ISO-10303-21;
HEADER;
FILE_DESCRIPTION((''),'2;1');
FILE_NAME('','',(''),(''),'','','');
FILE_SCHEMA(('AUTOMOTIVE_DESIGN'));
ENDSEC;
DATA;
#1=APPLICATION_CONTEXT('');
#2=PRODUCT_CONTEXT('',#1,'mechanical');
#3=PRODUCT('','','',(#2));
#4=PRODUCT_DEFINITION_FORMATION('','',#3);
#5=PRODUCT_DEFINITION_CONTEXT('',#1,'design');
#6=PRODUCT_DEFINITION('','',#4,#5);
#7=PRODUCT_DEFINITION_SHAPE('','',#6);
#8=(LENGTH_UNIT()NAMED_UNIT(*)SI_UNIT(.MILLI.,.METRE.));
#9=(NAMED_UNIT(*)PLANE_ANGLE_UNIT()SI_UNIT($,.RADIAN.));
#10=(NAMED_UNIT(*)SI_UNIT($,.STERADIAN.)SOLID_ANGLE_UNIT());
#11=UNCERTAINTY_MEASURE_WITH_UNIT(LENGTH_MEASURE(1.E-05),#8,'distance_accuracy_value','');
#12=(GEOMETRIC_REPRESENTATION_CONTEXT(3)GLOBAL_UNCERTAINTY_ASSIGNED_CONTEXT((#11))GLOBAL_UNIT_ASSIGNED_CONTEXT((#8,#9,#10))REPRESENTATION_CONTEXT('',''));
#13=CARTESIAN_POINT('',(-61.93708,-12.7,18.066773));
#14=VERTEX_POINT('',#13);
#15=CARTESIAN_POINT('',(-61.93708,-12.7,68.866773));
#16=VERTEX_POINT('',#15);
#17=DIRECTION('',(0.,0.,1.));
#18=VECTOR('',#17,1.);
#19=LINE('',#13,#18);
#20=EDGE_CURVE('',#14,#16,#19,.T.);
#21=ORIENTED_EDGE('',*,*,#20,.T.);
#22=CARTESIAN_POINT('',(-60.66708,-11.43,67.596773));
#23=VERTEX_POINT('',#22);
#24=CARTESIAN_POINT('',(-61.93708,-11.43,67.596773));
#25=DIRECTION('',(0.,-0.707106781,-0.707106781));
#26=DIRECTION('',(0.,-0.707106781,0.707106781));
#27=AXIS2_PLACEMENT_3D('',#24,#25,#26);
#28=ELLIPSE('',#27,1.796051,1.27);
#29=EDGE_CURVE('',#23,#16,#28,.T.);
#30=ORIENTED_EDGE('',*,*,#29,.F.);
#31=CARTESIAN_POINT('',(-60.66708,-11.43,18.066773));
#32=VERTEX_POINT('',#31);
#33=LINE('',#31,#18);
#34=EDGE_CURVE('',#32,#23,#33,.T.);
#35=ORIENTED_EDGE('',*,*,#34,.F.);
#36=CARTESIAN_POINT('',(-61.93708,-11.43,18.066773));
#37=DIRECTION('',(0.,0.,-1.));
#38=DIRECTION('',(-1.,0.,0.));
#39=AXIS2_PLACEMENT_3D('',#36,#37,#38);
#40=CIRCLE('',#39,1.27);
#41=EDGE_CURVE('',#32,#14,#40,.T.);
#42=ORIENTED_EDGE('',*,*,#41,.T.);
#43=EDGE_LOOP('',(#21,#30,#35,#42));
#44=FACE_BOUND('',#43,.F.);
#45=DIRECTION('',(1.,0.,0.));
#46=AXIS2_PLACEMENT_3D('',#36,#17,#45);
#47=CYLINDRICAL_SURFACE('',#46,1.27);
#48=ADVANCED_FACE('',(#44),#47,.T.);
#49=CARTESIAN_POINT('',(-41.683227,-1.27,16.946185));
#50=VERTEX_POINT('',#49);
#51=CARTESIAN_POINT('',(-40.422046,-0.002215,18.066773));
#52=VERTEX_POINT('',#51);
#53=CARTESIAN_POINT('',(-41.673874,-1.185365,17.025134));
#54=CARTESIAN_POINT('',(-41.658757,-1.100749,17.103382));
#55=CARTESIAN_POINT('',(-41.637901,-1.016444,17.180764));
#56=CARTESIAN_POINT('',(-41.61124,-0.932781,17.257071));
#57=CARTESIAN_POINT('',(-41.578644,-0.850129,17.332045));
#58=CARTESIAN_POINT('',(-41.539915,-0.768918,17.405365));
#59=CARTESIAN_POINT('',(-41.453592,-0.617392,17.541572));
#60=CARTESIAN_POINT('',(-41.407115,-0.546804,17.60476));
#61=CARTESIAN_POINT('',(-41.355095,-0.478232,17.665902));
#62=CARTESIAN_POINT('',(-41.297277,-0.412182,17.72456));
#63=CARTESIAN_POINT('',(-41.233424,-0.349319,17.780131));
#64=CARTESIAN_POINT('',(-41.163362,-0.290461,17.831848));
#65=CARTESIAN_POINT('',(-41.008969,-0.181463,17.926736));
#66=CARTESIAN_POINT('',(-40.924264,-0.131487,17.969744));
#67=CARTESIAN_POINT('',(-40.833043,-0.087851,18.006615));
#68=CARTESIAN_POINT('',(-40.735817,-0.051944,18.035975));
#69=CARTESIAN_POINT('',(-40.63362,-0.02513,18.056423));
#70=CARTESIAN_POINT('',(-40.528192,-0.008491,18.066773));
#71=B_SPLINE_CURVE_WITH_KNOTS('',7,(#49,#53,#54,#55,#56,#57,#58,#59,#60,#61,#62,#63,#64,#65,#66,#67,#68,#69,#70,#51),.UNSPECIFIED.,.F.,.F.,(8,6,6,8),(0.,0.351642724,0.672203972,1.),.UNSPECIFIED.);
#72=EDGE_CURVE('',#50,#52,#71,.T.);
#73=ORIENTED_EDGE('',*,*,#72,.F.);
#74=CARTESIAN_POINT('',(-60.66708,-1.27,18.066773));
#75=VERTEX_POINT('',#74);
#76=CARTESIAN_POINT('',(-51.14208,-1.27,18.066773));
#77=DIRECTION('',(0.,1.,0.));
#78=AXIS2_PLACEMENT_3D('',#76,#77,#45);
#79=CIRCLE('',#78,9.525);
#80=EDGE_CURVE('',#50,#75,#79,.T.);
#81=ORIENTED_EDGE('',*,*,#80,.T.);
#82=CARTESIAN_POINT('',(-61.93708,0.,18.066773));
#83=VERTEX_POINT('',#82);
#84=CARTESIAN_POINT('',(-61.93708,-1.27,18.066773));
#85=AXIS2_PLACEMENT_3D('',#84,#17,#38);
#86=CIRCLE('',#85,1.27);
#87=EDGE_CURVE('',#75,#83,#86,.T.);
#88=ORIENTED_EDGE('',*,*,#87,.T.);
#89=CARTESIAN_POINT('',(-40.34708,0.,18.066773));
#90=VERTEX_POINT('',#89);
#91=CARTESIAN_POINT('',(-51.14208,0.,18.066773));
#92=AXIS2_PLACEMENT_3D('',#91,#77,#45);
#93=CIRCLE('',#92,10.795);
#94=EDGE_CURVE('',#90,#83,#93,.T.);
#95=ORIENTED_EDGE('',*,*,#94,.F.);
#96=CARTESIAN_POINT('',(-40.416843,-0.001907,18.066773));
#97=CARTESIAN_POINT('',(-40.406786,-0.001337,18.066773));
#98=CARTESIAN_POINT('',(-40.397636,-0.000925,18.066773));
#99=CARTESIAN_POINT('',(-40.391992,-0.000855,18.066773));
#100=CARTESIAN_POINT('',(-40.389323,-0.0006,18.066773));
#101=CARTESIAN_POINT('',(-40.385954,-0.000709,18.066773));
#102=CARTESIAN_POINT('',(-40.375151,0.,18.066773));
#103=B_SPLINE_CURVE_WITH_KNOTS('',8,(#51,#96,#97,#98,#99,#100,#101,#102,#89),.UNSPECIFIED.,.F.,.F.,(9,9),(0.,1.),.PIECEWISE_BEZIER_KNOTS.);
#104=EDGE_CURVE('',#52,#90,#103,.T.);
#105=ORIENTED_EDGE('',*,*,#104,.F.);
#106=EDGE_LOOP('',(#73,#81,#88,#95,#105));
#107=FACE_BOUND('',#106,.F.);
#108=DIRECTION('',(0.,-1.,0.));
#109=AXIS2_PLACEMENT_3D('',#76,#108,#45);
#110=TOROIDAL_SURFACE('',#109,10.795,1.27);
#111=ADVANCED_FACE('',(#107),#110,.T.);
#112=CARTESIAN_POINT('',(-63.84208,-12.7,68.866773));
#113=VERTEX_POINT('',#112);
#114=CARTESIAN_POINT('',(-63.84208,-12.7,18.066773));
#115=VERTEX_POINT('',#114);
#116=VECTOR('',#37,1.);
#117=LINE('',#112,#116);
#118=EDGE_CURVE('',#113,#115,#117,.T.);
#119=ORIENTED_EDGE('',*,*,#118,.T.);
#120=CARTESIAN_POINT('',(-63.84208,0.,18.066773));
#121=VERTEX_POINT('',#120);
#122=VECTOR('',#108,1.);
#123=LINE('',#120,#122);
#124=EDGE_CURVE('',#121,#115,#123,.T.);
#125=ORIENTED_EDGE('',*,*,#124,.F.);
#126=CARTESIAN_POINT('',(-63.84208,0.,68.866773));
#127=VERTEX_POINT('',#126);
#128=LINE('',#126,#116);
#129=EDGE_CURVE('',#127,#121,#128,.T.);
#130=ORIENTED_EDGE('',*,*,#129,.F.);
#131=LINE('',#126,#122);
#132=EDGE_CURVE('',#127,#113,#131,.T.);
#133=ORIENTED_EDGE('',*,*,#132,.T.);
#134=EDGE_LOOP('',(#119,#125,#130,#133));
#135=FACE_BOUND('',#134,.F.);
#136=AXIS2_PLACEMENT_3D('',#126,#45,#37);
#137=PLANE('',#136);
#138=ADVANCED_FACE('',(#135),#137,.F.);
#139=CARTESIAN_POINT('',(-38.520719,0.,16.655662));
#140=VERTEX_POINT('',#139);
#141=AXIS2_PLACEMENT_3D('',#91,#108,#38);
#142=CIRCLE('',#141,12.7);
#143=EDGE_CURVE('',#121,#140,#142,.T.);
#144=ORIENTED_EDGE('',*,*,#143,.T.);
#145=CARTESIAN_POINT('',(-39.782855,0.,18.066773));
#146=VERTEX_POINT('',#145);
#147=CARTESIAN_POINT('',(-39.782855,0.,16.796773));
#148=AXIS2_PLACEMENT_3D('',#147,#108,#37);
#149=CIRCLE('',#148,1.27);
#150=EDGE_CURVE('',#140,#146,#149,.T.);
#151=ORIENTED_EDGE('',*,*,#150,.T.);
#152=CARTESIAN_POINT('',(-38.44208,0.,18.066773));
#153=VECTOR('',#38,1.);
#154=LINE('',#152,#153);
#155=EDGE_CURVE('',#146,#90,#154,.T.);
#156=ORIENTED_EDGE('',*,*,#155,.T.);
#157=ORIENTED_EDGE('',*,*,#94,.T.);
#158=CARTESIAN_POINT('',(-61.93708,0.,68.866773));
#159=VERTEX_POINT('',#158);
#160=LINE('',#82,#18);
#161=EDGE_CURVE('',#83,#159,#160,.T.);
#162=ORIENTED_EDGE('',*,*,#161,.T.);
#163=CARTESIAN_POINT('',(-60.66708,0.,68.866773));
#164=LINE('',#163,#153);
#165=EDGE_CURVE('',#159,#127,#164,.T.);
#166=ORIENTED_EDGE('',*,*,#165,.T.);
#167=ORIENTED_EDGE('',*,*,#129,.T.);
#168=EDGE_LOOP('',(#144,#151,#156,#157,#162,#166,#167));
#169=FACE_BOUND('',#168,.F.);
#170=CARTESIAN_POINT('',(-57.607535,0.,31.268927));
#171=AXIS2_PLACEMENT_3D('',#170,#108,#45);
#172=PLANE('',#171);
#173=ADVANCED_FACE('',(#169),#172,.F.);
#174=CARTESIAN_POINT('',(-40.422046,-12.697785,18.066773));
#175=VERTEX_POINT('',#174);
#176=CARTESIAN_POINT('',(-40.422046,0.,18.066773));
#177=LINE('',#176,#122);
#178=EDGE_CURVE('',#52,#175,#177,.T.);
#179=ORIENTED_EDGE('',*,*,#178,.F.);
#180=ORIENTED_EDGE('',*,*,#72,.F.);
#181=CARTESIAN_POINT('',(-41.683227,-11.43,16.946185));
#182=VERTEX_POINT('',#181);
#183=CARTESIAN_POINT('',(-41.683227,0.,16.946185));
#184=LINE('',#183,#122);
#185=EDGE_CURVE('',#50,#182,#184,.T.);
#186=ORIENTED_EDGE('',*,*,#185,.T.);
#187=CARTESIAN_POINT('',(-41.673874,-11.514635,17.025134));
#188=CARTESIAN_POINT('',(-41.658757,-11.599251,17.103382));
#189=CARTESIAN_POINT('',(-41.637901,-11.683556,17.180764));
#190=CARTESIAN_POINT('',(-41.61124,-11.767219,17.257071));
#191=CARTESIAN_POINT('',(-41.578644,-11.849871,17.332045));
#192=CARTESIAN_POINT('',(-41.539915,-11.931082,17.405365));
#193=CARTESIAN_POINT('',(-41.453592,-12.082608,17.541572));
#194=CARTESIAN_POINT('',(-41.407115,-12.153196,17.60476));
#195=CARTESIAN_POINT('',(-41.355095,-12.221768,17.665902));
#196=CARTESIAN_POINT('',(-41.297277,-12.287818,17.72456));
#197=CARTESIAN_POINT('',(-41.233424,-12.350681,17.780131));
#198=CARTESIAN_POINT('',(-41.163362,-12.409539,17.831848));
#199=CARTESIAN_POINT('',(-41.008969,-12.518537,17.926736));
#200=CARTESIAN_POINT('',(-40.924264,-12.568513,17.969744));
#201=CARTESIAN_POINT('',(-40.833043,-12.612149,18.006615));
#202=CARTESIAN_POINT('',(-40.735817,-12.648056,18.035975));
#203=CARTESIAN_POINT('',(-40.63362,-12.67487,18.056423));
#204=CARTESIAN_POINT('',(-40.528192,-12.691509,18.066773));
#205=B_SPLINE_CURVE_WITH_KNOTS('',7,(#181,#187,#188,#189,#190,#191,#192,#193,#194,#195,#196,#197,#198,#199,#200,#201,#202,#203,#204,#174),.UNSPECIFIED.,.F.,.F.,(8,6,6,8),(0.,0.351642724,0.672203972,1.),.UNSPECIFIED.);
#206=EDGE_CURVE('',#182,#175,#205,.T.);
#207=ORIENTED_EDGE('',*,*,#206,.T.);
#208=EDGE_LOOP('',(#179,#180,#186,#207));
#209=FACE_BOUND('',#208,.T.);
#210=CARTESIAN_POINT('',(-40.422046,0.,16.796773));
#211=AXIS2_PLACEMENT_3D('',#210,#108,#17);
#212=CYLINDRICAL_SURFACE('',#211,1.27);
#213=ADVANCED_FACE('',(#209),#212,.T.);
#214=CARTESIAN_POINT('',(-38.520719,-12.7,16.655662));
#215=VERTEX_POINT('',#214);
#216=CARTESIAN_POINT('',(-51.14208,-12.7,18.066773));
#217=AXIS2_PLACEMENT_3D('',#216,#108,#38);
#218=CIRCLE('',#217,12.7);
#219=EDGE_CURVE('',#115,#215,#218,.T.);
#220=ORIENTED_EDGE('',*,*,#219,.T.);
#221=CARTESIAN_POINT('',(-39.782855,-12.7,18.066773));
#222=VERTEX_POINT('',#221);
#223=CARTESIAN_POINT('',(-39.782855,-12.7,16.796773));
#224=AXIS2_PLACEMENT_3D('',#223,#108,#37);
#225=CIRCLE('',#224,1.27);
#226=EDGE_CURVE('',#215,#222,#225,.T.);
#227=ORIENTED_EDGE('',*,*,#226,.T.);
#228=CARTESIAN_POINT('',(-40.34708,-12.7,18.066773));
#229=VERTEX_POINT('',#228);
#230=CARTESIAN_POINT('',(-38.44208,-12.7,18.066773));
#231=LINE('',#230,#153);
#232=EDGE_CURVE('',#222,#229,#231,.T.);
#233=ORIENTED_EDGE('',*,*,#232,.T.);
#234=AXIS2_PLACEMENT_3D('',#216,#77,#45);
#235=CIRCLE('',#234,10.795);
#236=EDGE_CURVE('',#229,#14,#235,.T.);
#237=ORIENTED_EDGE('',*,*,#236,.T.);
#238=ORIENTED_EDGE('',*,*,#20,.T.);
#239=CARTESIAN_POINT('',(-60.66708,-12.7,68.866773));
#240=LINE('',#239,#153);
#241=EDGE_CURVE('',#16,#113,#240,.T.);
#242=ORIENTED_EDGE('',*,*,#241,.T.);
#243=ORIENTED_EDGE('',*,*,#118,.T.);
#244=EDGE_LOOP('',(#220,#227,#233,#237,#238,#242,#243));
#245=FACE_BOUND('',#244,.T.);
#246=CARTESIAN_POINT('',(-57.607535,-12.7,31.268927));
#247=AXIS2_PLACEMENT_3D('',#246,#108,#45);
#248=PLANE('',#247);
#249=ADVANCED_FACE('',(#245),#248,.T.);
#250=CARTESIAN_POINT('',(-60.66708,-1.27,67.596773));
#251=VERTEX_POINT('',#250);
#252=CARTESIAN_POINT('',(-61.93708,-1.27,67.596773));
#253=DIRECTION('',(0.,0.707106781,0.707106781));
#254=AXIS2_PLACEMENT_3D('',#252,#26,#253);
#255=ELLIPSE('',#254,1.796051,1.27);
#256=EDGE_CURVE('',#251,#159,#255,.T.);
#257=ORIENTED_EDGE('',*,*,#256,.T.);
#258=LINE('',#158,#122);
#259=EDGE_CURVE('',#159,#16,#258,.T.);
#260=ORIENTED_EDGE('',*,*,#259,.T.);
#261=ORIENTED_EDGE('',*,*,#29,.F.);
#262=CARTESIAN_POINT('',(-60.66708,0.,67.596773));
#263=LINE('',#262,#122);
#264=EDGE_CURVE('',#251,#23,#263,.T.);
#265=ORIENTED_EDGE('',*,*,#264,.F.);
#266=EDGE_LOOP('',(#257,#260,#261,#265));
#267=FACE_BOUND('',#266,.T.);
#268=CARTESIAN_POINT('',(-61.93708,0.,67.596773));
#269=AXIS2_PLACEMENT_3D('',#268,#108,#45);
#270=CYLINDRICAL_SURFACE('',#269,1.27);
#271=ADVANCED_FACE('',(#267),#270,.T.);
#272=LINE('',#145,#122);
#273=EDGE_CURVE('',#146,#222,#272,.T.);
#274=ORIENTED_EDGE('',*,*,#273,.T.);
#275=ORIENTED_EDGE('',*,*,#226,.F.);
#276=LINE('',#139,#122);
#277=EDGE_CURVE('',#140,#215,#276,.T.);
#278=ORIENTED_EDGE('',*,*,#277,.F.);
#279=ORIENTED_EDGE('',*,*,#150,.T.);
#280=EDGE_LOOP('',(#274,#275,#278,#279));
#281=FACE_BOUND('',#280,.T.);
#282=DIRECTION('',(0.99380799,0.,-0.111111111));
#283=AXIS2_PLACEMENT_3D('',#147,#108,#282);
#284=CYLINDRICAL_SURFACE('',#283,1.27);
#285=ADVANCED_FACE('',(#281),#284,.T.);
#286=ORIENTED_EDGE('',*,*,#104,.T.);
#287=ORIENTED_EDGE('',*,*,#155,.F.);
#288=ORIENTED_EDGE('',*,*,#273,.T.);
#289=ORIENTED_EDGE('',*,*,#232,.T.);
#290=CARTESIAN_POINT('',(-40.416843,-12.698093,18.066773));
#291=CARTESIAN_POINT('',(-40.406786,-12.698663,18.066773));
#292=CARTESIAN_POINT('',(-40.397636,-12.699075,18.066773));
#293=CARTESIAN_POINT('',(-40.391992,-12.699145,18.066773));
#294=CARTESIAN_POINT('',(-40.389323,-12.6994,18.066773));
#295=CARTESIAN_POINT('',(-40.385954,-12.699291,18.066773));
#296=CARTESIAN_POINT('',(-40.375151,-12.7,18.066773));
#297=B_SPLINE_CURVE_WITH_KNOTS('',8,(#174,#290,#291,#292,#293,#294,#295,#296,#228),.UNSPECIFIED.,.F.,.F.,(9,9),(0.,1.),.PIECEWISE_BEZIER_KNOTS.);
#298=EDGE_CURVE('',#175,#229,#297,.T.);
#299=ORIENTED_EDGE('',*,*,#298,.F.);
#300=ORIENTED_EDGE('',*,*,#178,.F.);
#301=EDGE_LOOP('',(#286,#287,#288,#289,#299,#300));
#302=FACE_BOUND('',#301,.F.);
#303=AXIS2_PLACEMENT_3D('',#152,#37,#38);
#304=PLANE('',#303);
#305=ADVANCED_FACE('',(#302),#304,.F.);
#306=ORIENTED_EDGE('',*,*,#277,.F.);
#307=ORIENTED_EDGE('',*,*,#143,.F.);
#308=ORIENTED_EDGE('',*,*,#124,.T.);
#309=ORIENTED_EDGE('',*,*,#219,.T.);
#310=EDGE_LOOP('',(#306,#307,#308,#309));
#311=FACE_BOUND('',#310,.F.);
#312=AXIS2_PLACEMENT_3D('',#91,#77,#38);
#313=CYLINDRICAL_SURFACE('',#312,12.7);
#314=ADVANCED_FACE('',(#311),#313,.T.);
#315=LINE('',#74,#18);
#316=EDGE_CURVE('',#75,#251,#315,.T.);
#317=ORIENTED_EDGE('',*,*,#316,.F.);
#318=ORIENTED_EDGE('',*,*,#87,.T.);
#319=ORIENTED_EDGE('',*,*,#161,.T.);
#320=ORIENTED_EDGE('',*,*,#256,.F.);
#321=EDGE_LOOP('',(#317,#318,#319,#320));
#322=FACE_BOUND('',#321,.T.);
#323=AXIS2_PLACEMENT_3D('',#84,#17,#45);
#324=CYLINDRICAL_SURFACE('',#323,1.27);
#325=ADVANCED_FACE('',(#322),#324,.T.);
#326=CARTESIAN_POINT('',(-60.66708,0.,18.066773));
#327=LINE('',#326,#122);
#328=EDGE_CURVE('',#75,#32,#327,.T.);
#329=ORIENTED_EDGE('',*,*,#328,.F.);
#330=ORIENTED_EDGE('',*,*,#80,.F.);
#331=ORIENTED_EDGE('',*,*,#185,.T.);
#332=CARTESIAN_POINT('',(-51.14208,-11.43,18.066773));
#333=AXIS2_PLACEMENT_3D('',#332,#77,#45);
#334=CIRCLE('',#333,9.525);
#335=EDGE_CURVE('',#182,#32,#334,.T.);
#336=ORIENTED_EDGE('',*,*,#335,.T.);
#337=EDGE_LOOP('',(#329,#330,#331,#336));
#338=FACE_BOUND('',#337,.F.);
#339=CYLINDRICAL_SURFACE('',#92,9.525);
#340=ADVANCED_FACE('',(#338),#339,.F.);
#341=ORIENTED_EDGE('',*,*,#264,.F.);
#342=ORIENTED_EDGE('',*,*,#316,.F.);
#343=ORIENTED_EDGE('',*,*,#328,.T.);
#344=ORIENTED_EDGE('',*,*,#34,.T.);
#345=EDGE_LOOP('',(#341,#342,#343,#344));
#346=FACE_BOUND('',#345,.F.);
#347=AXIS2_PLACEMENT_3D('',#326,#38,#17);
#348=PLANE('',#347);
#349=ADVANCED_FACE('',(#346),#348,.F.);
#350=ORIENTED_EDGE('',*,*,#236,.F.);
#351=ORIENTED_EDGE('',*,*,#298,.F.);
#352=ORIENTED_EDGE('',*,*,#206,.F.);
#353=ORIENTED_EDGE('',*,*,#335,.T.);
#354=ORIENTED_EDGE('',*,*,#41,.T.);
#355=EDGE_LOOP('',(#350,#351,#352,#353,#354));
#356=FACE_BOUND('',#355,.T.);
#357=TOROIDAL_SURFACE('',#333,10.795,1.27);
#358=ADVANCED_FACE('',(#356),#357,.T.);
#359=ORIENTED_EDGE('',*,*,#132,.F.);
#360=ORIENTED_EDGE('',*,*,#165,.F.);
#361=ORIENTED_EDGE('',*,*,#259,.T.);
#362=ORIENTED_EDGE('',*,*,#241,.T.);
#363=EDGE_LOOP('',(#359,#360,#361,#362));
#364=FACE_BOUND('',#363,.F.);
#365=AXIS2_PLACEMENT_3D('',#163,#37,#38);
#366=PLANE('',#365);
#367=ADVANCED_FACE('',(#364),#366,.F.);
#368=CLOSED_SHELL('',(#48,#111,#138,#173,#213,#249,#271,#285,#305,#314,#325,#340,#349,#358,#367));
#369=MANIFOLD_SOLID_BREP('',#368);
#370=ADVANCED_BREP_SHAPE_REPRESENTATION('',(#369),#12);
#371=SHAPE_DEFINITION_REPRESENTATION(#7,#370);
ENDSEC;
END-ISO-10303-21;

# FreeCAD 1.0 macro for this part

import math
import FreeCAD as App
import Part
import Sketcher
from FreeCAD import Vector
Q = App.Units.Quantity


def edges_at(feature, points):
    """Names of the edges that pass closest to the given points."""
    edges = feature.Shape.Edges
    near = lambda p: min(range(len(edges)), key=lambda i: edges[i].distToShape(Part.Vertex(*p))[0])
    return sorted({f"Edge{near(p) + 1}" for p in points})

doc = App.newDocument("Part")
body = doc.addObject("PartDesign::Body", "Body")

# Sketch on XZ plane
sketch1 = doc.addObject("Sketcher::SketchObject", "Sketch")
body.addObject(sketch1)
sketch1.AttachmentSupport = (doc.XZ_Plane, [""])
sketch1.MapMode = "FlatFace"
sketch1.addGeometry([
    Part.LineSegment(Vector(-60.7, 18.1, 0), Vector(-60.7, 68.9, 0)),  # 0
    Part.LineSegment(Vector(-60.7, 68.9, 0), Vector(-63.8, 68.9, 0)),  # 1
    Part.LineSegment(Vector(-63.8, 68.9, 0), Vector(-63.8, 18.1, 0)),  # 2
    Part.ArcOfCircle(Part.Circle(Vector(-51.1, 18.1, 0), Vector(0, 0, 1), 12.7), math.radians(180), math.radians(360)),  # 3
    Part.LineSegment(Vector(-38.4, 18.1, 0), Vector(-41.6, 18.1, 0)),  # 4
    Part.ArcOfCircle(Part.Circle(Vector(-51.1, 18.1, 0), Vector(0, 0, 1), 9.5), math.radians(180), math.radians(360)),  # 5
], False)
sketch1.addConstraint([
    Sketcher.Constraint("Coincident", 0, 2, 1, 1),
    Sketcher.Constraint("Coincident", 1, 2, 2, 1),
    Sketcher.Constraint("Tangent", 2, 2, 3, 1),
    Sketcher.Constraint("Coincident", 3, 2, 4, 1),
    Sketcher.Constraint("Coincident", 4, 2, 5, 2),
    Sketcher.Constraint("Tangent", 5, 1, 0, 1),
    Sketcher.Constraint("Vertical", 0),
    Sketcher.Constraint("Horizontal", 1),
    Sketcher.Constraint("Vertical", 2),
    Sketcher.Constraint("Horizontal", 4),
    Sketcher.Constraint("Coincident", 5, 3, 3, 3),
    Sketcher.Constraint("Horizontal", 2, 2, 3, 2),
    Sketcher.Constraint("Radius", 3, Q("0.5 in")),
    Sketcher.Constraint("DistanceY", 0, 1, 0, 2, Q("2 in")),
    Sketcher.Constraint("Radius", 5, Q("0.375 in")),
    Sketcher.Constraint("DistanceX", 3, 3, -1, 1, 51.14208),
    Sketcher.Constraint("DistanceY", -1, 1, 3, 3, 18.066773),
])
pad1 = doc.addObject("PartDesign::Pad", "Pad")
body.addObject(pad1)
pad1.Profile = sketch1
pad1.Length = Q("0.5 in")
doc.recompute()

fillet = doc.addObject("PartDesign::Fillet", "Fillet")
body.addObject(fillet)
fillet.Base = (pad1, edges_at(pad1, [
    (-60.667, -12.7, 43.467),
    (-60.667, 0, 43.467),
    (-38.442, -6.35, 18.067),
    (-41.617, -6.35, 18.067),
    (-60.667, -6.35, 68.867),
]))
fillet.Radius = Q("0.05 in")

doc.recompute()
